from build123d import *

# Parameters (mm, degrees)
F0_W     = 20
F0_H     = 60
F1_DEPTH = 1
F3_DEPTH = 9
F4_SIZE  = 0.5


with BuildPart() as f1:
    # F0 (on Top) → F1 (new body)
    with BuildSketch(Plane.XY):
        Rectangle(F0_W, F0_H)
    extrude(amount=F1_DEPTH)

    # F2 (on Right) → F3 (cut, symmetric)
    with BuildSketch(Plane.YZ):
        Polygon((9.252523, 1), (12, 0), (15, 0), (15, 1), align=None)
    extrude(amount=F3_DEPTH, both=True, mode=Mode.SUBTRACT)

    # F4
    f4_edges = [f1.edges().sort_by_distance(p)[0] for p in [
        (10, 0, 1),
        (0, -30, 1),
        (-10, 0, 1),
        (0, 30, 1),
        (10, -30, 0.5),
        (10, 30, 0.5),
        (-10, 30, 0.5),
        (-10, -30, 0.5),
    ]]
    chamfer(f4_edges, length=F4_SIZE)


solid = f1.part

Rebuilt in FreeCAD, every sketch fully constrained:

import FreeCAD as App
import Part
import Sketcher

V = App.Vector
Q = App.Units.Quantity


def edges_at(feature, points):
    """Names of the edges that pass closest to the given points."""
    edges = feature.Shape.Edges
    near = lambda p: min(range(len(edges)), key=lambda i: edges[i].distToShape(Part.Vertex(*p))[0])
    return sorted({f"Edge{near(p) + 1}" for p in points})

doc = App.newDocument("Part")
params = doc.addObject("Spreadsheet::Sheet", "Params")
for row, (alias, value) in enumerate([
    ("sketch1_width", "20 mm"),
    ("sketch1_height", "60 mm"),
    ("pad1_length", "1 mm"),
    ("sketch2_width", "3 mm"),
    ("sketch2_height", "1 mm"),
    ("pocket1_length", "18 mm"),
    ("chamfer_size", "0.5 mm"),
], start=1):
    params.set(f"A{row}", alias)
    params.set(f"B{row}", "=" + value)
    params.setAlias(f"B{row}", alias)

body = doc.addObject("PartDesign::Body", "Body")

# Sketch on XY plane
sketch1 = body.newObject("Sketcher::SketchObject", "Sketch")
sketch1.AttachmentSupport = (doc.getObject("XY_Plane"), [""])
sketch1.MapMode = "FlatFace"
sketch1.addGeometry([
    Part.LineSegment(V(-10, 30, 0), V(-10, -30, 0)),
    Part.LineSegment(V(-10, -30, 0), V(10, -30, 0)),
    Part.LineSegment(V(10, -30, 0), V(10, 30, 0)),
    Part.LineSegment(V(10, 30, 0), V(-10, 30, 0)),
], False)
sketch1.addConstraint([
    Sketcher.Constraint("Coincident", 0, 2, 1, 1),
    Sketcher.Constraint("Coincident", 1, 2, 2, 1),
    Sketcher.Constraint("Coincident", 2, 2, 3, 1),
    Sketcher.Constraint("Coincident", 3, 2, 0, 1),
    Sketcher.Constraint("Vertical", 0),
    Sketcher.Constraint("Horizontal", 1),
    Sketcher.Constraint("Vertical", 2),
    Sketcher.Constraint("Horizontal", 3),
    Sketcher.Constraint("Symmetric", 0, 2, 2, 2, -1, 1),
    Sketcher.Constraint("DistanceX", 1, 1, 1, 2, 20.0),
    Sketcher.Constraint("DistanceY", 0, 2, 0, 1, 60.0),
])
sketch1.setExpression("Constraints[9]", "Params.sketch1_width")
sketch1.setExpression("Constraints[10]", "Params.sketch1_height")
pad1 = body.newObject("PartDesign::Pad", "Pad")
pad1.Profile = sketch1
pad1.setExpression("Length", "Params.pad1_length")

# Sketch on YZ plane
sketch2 = body.newObject("Sketcher::SketchObject", "Sketch001")
sketch2.AttachmentSupport = (doc.getObject("YZ_Plane"), [""])
sketch2.MapMode = "FlatFace"
sketch2.addGeometry([
    Part.LineSegment(V(9.252523, 1, 0), V(12, 0, 0)),
    Part.LineSegment(V(12, 0, 0), V(15, 0, 0)),
    Part.LineSegment(V(15, 0, 0), V(15, 1, 0)),
    Part.LineSegment(V(15, 1, 0), V(9.252523, 1, 0)),
], False)
sketch2.addConstraint([
    Sketcher.Constraint("Coincident", 0, 2, 1, 1),
    Sketcher.Constraint("Coincident", 1, 2, 2, 1),
    Sketcher.Constraint("Coincident", 2, 2, 3, 1),
    Sketcher.Constraint("Coincident", 3, 2, 0, 1),
    Sketcher.Constraint("Horizontal", 1),
    Sketcher.Constraint("Vertical", 2),
    Sketcher.Constraint("Horizontal", 3),
    Sketcher.Constraint("PointOnObject", 0, 2, -1),
    Sketcher.Constraint("DistanceX", 1, 1, 1, 2, 3.0),
    Sketcher.Constraint("DistanceY", 2, 1, 2, 2, 1.0),
    Sketcher.Constraint("Angle", 0, Q("-20.000003 deg")),
    Sketcher.Constraint("DistanceX", -1, 1, 0, 2, 12.0),
])
sketch2.setExpression("Constraints[8]", "Params.sketch2_width")
sketch2.setExpression("Constraints[9]", "Params.sketch2_height")
pocket1 = body.newObject("PartDesign::Pocket", "Pocket")
pocket1.Profile = sketch2
pocket1.setExpression("Length", "Params.pocket1_length")
pocket1.Midplane = True
doc.recompute()

chamfer = body.newObject("PartDesign::Chamfer", "Chamfer")
chamfer.Base = (pocket1, edges_at(pocket1, [
    (10, 0, 1),
    (0, -30, 1),
    (-10, 0, 1),
    (0, 30, 1),
    (10, -30, 0.5),
    (10, 30, 0.5),
    (-10, 30, 0.5),
    (-10, -30, 0.5),
]))
chamfer.setExpression("Size", "Params.chamfer_size")

doc.recompute()
